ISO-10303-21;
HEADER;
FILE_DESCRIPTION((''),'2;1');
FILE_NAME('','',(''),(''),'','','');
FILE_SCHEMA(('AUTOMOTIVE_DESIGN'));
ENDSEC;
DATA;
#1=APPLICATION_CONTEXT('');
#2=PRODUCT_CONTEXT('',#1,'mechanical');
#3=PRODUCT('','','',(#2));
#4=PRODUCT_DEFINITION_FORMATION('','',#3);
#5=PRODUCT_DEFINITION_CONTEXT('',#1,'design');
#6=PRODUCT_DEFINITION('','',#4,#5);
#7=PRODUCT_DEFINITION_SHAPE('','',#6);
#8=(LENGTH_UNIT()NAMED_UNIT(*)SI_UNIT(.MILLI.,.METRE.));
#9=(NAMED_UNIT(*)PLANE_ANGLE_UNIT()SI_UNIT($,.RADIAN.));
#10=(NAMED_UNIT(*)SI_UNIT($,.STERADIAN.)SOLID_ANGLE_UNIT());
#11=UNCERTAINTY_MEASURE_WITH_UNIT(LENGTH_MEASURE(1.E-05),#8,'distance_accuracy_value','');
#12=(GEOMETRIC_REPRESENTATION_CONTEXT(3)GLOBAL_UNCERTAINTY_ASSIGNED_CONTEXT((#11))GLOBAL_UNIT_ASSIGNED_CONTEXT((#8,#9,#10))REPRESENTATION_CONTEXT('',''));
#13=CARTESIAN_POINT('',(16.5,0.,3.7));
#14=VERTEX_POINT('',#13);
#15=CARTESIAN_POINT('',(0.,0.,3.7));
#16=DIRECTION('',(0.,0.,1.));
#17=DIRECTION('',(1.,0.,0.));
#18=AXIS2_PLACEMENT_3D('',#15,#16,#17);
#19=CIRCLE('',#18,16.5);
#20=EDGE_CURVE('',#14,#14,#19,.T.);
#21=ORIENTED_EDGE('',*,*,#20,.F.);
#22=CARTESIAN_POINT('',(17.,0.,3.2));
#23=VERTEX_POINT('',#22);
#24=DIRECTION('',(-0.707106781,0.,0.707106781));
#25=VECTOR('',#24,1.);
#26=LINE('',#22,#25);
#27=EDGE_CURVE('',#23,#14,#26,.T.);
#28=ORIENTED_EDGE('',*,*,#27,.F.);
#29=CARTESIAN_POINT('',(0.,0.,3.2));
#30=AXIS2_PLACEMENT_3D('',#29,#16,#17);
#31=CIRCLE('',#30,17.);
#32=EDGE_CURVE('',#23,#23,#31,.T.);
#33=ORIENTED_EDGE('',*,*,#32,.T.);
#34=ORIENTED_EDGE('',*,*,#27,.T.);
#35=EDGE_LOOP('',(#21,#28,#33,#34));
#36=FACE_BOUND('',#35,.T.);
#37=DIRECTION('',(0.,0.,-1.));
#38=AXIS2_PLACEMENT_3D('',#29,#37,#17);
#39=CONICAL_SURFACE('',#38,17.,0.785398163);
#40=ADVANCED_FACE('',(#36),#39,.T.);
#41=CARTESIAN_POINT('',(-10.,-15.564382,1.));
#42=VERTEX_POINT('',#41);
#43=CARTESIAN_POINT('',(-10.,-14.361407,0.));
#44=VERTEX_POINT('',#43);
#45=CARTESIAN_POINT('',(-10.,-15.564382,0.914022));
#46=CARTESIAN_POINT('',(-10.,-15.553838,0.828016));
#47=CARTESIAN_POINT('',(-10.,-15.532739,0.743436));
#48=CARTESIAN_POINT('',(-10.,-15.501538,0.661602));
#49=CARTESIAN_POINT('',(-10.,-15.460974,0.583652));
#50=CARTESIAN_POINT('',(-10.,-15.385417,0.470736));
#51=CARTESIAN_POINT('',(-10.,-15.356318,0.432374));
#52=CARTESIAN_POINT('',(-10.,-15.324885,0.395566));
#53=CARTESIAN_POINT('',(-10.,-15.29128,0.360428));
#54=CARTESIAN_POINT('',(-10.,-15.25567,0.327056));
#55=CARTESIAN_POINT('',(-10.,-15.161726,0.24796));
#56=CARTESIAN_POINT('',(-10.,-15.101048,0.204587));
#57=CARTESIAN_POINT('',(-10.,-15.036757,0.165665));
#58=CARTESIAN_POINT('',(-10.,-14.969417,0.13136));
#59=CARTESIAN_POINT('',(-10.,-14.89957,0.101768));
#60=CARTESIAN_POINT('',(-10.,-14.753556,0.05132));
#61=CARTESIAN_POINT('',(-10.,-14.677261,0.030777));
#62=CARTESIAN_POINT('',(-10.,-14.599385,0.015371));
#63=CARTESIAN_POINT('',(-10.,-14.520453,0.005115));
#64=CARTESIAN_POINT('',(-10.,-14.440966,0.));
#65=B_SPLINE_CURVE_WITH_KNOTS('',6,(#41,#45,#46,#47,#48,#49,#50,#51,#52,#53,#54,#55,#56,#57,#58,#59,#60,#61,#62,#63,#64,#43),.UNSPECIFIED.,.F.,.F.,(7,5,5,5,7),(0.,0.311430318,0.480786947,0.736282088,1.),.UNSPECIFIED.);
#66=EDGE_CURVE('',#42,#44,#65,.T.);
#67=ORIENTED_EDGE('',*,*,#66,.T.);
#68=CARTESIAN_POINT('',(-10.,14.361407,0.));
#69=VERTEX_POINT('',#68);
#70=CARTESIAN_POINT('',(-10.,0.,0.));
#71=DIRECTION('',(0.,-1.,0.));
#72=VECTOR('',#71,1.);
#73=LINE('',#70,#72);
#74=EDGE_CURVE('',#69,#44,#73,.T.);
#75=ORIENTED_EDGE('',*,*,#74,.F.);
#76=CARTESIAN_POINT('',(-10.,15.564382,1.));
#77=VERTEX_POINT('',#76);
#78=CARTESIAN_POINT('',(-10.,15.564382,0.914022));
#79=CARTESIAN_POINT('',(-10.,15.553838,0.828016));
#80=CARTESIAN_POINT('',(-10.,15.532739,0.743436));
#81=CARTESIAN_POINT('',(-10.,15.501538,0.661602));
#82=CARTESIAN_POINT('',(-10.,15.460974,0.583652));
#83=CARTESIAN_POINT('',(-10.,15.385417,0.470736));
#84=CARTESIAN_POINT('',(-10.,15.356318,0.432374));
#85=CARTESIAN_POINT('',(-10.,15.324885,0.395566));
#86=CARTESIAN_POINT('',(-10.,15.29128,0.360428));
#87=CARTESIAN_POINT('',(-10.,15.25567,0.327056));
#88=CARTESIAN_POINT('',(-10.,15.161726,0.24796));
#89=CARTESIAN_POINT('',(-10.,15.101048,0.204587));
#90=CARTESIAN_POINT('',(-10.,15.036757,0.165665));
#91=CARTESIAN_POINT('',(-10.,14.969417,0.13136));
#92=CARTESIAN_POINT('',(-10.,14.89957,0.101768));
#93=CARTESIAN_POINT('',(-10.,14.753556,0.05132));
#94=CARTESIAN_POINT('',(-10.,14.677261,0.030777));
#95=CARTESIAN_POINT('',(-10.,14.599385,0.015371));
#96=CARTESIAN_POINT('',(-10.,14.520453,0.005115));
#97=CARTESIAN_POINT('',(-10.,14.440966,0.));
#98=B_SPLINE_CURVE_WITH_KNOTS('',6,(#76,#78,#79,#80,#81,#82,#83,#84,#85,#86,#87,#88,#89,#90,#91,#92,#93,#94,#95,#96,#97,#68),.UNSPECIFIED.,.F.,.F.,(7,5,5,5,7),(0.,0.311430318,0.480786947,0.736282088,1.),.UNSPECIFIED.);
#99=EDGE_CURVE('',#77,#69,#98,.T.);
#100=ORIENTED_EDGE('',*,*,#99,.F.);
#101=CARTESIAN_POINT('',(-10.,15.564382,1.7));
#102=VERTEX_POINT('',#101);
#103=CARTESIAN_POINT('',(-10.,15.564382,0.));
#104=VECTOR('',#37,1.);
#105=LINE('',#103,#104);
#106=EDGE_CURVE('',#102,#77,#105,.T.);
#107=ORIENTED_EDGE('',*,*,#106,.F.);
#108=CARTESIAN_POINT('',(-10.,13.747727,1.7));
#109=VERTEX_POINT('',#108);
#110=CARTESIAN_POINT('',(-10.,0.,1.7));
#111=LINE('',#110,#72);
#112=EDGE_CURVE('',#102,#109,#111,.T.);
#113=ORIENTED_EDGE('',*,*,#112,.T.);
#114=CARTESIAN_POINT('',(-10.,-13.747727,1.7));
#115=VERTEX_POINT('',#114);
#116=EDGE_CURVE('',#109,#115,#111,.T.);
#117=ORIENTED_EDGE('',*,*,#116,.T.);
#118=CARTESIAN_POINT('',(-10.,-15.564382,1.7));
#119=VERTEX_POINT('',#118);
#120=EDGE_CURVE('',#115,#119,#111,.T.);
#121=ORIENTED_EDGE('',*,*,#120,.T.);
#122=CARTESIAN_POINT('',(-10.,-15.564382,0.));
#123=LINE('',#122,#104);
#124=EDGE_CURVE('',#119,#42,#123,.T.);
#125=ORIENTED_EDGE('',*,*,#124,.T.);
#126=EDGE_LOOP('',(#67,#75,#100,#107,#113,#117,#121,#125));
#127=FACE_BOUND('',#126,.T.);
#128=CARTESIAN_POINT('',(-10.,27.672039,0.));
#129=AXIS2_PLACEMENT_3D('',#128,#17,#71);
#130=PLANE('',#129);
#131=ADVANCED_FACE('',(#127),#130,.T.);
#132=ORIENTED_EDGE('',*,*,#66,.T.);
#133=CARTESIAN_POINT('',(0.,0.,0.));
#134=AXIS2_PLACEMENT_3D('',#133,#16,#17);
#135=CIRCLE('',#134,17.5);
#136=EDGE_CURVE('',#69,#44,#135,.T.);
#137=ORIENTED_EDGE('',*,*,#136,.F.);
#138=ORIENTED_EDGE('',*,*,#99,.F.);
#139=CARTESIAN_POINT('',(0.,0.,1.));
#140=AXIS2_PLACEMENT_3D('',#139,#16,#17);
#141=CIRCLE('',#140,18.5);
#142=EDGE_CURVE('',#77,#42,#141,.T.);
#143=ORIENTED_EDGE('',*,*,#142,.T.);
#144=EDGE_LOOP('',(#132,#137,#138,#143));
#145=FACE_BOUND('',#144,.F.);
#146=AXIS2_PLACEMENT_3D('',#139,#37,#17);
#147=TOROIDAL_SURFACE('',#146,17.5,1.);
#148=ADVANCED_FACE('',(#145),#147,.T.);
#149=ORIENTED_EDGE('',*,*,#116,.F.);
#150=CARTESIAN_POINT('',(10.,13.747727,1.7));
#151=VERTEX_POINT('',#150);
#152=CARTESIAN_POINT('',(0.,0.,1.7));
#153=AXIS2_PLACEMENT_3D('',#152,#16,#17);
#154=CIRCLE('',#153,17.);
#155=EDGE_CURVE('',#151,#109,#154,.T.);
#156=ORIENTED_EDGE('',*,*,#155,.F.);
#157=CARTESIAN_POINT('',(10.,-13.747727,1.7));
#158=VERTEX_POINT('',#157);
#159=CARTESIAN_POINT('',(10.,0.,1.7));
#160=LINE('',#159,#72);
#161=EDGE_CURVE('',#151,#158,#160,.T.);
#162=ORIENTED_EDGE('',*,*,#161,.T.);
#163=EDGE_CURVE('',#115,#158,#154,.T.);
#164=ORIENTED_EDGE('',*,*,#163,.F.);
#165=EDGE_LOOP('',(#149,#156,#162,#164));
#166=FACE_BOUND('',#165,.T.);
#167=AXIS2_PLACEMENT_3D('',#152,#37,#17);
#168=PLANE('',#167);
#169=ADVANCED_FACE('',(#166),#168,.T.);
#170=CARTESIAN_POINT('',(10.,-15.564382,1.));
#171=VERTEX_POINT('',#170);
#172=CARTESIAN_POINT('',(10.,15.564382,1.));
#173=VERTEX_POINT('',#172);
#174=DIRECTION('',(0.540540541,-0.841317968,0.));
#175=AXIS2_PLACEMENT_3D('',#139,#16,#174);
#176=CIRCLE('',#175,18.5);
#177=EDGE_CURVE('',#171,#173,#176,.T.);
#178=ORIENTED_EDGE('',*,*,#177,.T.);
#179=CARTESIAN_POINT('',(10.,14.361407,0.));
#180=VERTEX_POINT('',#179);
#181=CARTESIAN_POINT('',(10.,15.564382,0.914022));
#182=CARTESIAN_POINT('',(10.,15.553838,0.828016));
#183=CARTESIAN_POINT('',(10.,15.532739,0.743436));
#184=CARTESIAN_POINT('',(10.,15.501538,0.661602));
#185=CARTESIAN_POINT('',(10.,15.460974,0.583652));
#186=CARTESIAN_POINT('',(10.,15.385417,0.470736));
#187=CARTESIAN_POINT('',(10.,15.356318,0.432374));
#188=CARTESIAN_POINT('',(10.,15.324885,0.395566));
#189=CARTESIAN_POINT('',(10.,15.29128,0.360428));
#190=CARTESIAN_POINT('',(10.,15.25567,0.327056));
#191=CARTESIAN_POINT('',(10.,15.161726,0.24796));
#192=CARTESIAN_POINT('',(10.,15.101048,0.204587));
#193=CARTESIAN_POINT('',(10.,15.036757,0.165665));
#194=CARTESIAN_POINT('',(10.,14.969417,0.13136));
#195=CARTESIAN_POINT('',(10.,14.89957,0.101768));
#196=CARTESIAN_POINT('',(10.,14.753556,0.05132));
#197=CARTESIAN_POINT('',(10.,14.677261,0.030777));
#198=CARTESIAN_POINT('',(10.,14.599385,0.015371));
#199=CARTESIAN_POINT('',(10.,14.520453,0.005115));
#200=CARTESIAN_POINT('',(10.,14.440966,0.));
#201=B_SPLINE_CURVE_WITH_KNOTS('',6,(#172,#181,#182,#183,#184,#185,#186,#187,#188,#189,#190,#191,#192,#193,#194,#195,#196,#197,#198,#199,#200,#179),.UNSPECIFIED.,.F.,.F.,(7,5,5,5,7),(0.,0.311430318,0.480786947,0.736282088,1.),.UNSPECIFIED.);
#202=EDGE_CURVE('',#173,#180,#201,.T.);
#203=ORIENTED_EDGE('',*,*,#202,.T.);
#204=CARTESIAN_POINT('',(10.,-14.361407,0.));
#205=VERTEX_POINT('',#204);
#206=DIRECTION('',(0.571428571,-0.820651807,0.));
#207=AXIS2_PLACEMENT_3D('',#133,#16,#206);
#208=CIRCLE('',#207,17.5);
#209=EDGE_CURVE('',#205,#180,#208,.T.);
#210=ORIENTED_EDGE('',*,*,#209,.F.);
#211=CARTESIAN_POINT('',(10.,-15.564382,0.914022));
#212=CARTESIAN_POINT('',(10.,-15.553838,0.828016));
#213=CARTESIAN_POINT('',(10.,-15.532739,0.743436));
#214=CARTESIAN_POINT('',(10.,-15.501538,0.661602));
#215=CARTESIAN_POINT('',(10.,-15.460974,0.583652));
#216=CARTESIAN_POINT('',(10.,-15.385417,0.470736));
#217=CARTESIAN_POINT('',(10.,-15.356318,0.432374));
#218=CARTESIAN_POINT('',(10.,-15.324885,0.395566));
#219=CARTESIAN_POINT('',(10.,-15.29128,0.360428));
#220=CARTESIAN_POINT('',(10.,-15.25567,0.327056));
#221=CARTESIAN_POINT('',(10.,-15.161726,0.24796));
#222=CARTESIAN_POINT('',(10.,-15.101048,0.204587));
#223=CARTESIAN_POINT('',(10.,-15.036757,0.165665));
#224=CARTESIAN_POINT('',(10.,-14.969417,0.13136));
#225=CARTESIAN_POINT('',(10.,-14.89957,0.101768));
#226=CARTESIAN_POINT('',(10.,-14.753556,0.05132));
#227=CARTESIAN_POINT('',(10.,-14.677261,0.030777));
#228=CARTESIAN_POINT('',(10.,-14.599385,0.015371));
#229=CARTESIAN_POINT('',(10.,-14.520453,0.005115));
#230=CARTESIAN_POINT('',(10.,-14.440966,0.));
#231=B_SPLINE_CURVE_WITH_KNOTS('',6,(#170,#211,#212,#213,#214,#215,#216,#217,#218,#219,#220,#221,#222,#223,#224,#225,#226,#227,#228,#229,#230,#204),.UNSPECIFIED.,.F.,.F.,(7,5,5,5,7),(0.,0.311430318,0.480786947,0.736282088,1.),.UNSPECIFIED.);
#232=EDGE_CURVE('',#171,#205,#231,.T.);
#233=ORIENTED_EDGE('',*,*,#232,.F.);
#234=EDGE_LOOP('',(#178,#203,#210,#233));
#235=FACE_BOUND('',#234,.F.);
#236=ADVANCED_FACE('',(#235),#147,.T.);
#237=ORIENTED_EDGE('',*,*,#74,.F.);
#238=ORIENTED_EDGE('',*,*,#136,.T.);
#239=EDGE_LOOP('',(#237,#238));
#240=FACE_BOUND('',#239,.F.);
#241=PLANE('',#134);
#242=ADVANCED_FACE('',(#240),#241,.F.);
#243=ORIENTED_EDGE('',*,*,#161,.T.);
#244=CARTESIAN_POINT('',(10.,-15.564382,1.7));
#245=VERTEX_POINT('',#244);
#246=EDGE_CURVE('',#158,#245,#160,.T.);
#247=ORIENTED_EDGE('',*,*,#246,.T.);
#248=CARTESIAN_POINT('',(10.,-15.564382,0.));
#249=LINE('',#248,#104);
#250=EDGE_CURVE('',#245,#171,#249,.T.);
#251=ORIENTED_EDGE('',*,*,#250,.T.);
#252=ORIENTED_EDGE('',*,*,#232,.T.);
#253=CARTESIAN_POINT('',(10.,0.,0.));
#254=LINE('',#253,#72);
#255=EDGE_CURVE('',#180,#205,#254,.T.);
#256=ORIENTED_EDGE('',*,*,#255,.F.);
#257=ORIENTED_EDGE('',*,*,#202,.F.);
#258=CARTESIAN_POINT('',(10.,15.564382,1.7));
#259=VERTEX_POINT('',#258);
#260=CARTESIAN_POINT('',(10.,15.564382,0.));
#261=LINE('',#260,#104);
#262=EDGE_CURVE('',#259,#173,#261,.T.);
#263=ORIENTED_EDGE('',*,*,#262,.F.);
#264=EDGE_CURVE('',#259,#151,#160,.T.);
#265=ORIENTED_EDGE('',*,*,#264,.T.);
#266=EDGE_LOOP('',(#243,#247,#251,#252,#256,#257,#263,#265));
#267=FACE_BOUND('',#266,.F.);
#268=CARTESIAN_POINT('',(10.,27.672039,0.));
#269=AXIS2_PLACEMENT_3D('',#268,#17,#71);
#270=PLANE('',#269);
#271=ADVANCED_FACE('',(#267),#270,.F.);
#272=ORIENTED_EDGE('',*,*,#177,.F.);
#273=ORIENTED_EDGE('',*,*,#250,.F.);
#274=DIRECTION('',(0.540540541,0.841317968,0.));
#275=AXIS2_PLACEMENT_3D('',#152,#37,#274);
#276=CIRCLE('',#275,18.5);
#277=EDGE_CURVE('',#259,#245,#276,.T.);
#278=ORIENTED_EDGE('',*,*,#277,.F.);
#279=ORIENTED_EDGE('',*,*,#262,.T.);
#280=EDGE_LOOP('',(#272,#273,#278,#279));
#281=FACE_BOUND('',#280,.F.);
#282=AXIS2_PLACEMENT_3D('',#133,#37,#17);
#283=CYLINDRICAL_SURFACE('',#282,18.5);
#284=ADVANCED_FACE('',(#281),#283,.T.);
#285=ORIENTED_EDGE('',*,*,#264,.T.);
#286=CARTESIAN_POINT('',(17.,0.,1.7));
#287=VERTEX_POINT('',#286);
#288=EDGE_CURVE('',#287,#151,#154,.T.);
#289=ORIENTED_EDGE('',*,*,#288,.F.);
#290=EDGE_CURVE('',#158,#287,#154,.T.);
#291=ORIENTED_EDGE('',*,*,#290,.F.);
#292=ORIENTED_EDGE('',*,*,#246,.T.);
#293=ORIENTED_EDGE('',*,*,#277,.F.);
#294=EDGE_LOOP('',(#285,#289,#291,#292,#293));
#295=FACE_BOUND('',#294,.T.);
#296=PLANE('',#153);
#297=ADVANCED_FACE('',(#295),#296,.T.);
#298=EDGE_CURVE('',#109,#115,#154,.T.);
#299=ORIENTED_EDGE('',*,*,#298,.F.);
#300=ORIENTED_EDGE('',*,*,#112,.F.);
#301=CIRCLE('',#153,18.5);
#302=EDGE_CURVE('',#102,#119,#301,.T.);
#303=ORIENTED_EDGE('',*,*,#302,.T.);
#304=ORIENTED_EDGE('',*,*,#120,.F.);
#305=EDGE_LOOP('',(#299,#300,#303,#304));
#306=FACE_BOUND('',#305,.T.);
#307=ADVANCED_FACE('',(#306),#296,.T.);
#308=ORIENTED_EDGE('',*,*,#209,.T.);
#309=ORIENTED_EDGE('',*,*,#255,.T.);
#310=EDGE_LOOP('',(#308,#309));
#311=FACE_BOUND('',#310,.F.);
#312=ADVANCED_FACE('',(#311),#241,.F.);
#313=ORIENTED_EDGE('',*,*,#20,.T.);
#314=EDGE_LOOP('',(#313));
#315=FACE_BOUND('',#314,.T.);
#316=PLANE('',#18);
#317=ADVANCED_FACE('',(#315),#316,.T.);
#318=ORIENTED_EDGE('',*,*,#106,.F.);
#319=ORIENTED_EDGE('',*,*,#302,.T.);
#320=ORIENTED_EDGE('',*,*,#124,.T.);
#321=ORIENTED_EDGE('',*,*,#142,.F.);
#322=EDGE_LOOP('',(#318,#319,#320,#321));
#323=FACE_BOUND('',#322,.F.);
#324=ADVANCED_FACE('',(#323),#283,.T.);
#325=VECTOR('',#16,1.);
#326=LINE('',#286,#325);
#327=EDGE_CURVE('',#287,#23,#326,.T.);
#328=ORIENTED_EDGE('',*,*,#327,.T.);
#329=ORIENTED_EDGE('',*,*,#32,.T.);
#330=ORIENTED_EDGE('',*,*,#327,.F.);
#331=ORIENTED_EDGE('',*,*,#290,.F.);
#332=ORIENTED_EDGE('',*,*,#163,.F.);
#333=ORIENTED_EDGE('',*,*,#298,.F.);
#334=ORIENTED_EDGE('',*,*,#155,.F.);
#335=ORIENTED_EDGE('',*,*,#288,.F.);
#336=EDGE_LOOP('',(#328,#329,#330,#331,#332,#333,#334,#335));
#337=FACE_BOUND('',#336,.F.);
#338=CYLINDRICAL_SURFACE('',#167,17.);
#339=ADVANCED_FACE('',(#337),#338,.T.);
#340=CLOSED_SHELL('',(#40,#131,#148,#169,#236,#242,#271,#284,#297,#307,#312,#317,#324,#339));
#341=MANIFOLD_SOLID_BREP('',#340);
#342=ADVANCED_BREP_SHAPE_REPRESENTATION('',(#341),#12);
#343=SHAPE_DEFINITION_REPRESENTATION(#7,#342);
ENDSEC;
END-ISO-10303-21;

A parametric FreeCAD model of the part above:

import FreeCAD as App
import Part
import Sketcher

V = App.Vector
Q = App.Units.Quantity


def edges_at(feature, points):
    """Names of the edges that pass closest to the given points."""
    edges = feature.Shape.Edges
    near = lambda p: min(range(len(edges)), key=lambda i: edges[i].distToShape(Part.Vertex(*p))[0])
    return sorted({f"Edge{near(p) + 1}" for p in points})


def add_polygon(sketch, points):
    """Adds a closed chain of lines whose ends are joined by coincident constraints."""
    first, n = sketch.GeometryCount, len(points)
    for a, b in zip(points, points[1:] + points[:1]):
        sketch.addGeometry(Part.LineSegment(App.Vector(*a, 0), App.Vector(*b, 0)), False)
    for i in range(n):
        sketch.addConstraint(Sketcher.Constraint("Coincident", first + i, 2, first + (i + 1) % n, 1))

doc = App.newDocument("Part")
body = doc.addObject("PartDesign::Body", "Body")

sketch1 = body.newObject("Sketcher::SketchObject", "Sketch")
sketch1.AttachmentSupport = (doc.getObject("XY_Plane"), [""])
sketch1.MapMode = "FlatFace"
sketch1.addGeometry(Part.Circle(V(0, 0, 0), V(0, 0, 1), 18.5), False)
sketch1.addConstraint(Sketcher.Constraint("Coincident", 0, 3, -1, 1))
sketch1.addConstraint(Sketcher.Constraint("Diameter", 0, Q("37 mm")))
pad1 = body.newObject("PartDesign::Pad", "Pad")
pad1.Profile = sketch1
pad1.Length = 1.7

sketch2 = body.newObject("Sketcher::SketchObject", "Sketch001")
sketch2.AttachmentSupport = (doc.getObject("XY_Plane"), [""])
sketch2.MapMode = "FlatFace"
sketch2.AttachmentOffset = App.Placement(V(0, 0, 1.7), App.Rotation())
sketch2.addGeometry(Part.Circle(V(0, 0, 0), V(0, 0, 1), 17), False)
sketch2.addConstraint(Sketcher.Constraint("Coincident", 0, 3, -1, 1))
sketch2.addConstraint(Sketcher.Constraint("Diameter", 0, Q("34 mm")))
pad2 = body.newObject("PartDesign::Pad", "Pad001")
pad2.Profile = sketch2
pad2.Length = 2
doc.recompute()

chamfer = body.newObject("PartDesign::Chamfer", "Chamfer")
chamfer.Base = (pad2, edges_at(pad2, [(-17, 0, 3.7)]))
chamfer.Size = 0.5
doc.recompute()

fillet = body.newObject("PartDesign::Fillet", "Fillet")
fillet.Base = (chamfer, edges_at(chamfer, [(-18.5, 0, 0)]))
fillet.Radius = 1

sketch3 = body.newObject("Sketcher::SketchObject", "Sketch002")
sketch3.AttachmentSupport = (doc.getObject("XY_Plane"), [""])
sketch3.MapMode = "FlatFace"
add_polygon(sketch3, [(-10, -27.672039), (-10, 27.672039), (10, 27.672039), (10, -27.672039)])
sketch3.addConstraint(Sketcher.Constraint("Vertical", 0))
sketch3.addConstraint(Sketcher.Constraint("Horizontal", 1))
sketch3.addConstraint(Sketcher.Constraint("Vertical", 2))
sketch3.addConstraint(Sketcher.Constraint("Horizontal", 3))
sketch3.addConstraint(Sketcher.Constraint("Symmetric", 0, 2, 2, 2, -1, 1))
sketch3.addConstraint(Sketcher.Constraint("DistanceX", 1, 1, 1, 2, Q("20 mm")))
sketch3.addConstraint(Sketcher.Constraint("DistanceY", 0, 1, 0, 2, Q("55.344078 mm")))
pocket1 = body.newObject("PartDesign::Pocket", "Pocket")
pocket1.Profile = sketch3
pocket1.Length = 1.7
pocket1.Reversed = True

doc.recompute()
